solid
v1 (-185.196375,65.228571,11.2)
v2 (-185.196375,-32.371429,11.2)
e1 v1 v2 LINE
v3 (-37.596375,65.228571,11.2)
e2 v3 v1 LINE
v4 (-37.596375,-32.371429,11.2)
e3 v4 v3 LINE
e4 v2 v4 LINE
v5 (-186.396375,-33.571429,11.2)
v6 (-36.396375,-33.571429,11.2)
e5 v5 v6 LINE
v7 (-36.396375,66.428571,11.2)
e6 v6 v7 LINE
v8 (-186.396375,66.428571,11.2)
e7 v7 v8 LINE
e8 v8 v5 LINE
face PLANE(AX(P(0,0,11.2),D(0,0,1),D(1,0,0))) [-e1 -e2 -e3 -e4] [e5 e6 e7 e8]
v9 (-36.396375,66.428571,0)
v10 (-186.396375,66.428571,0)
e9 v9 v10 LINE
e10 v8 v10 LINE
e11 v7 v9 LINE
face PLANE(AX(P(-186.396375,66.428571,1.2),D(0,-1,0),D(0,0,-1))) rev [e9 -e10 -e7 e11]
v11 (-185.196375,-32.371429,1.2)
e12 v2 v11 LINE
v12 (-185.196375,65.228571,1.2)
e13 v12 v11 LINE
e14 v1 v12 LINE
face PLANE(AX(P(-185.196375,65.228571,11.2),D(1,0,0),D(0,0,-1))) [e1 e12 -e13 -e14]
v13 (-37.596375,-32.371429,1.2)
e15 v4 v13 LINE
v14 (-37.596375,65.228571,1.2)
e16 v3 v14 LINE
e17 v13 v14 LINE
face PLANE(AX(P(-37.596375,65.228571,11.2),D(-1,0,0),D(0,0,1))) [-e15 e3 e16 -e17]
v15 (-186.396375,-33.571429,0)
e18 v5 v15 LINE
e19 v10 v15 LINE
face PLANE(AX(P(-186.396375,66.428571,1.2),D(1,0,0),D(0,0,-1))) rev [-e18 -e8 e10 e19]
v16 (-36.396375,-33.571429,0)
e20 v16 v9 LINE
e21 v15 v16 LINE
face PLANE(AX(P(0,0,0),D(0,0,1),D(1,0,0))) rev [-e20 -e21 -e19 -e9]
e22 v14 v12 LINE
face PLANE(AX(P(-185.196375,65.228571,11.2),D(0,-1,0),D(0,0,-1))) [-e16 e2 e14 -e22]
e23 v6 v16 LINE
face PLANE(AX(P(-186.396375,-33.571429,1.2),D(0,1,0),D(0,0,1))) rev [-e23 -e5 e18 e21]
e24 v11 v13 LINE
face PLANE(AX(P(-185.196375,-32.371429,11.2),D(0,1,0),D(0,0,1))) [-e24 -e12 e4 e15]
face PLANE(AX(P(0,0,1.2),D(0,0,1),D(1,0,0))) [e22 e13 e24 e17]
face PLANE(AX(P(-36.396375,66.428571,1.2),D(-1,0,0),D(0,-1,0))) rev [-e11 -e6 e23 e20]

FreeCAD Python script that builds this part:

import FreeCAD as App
import Part
import Sketcher
from FreeCAD import Vector

doc = App.newDocument("Part")
params = doc.addObject("Spreadsheet::Sheet", "Params")
for row, (alias, value) in enumerate([
    ("sketch1_width", "150 mm"),
    ("sketch1_height", "100 mm"),
    ("pad1_length", "1.2 mm"),
    ("sketch2_width", "150 mm"),
    ("sketch2_height", "100 mm"),
    ("sketch2_width2", "147.6 mm"),
    ("sketch2_height2", "97.6 mm"),
    ("pad2_length", "10 mm"),
], start=1):
    params.set(f"A{row}", alias)
    params.set(f"B{row}", "=" + value)
    params.setAlias(f"B{row}", alias)

body = doc.addObject("PartDesign::Body", "Body")

# Sketch on XY plane
sketch1 = body.newObject("Sketcher::SketchObject", "Sketch")
sketch1.AttachmentSupport = (doc.getObject("XY_Plane"), [""])
sketch1.MapMode = "FlatFace"
sketch1.addGeometry([
    Part.LineSegment(Vector(-186, 66, 0), Vector(-186, -34, 0)),
    Part.LineSegment(Vector(-186, -34, 0), Vector(-36, -34, 0)),
    Part.LineSegment(Vector(-36, -34, 0), Vector(-36, 66, 0)),
    Part.LineSegment(Vector(-36, 66, 0), Vector(-186, 66, 0)),
], False)
sketch1.addConstraint([
    Sketcher.Constraint("Coincident", 0, 2, 1, 1),
    Sketcher.Constraint("Coincident", 1, 2, 2, 1),
    Sketcher.Constraint("Coincident", 2, 2, 3, 1),
    Sketcher.Constraint("Coincident", 3, 2, 0, 1),
    Sketcher.Constraint("Vertical", 0),
    Sketcher.Constraint("Horizontal", 1),
    Sketcher.Constraint("Vertical", 2),
    Sketcher.Constraint("Horizontal", 3),
    Sketcher.Constraint("DistanceX", 1, 1, 1, 2, 150.0),
    Sketcher.Constraint("DistanceY", 0, 2, 0, 1, 100.0),
    Sketcher.Constraint("DistanceY", 0, 2, -1, 1, 33.571429),
    Sketcher.Constraint("DistanceX", 0, 2, -1, 1, 186.396375),
])
sketch1.setExpression("Constraints[8]", "Params.sketch1_width")
sketch1.setExpression("Constraints[9]", "Params.sketch1_height")
pad1 = body.newObject("PartDesign::Pad", "Pad")
pad1.Profile = sketch1
pad1.setExpression("Length", "Params.pad1_length")

# Sketch on XY plane
sketch2 = body.newObject("Sketcher::SketchObject", "Sketch001")
sketch2.AttachmentSupport = (doc.getObject("XY_Plane"), [""])
sketch2.MapMode = "FlatFace"
sketch2.AttachmentOffset = App.Placement(Vector(0, 0, 1.2), App.Rotation())
sketch2.addGeometry([
    Part.LineSegment(Vector(-186, 66, 0), Vector(-186, -34, 0)),  # 0
    Part.LineSegment(Vector(-186, -34, 0), Vector(-36, -34, 0)),  # 1
    Part.LineSegment(Vector(-36, -34, 0), Vector(-36, 66, 0)),  # 2
    Part.LineSegment(Vector(-36, 66, 0), Vector(-186, 66, 0)),  # 3
    Part.LineSegment(Vector(-38, -32, 0), Vector(-185, -32, 0)),  # 4
    Part.LineSegment(Vector(-185, -32, 0), Vector(-185, 65, 0)),  # 5
    Part.LineSegment(Vector(-185, 65, 0), Vector(-38, 65, 0)),  # 6
    Part.LineSegment(Vector(-38, 65, 0), Vector(-38, -32, 0)),  # 7
], False)
sketch2.addConstraint([
    Sketcher.Constraint("Coincident", 0, 2, 1, 1),
    Sketcher.Constraint("Coincident", 1, 2, 2, 1),
    Sketcher.Constraint("Coincident", 2, 2, 3, 1),
    Sketcher.Constraint("Coincident", 3, 2, 0, 1),
    Sketcher.Constraint("Coincident", 4, 2, 5, 1),
    Sketcher.Constraint("Coincident", 5, 2, 6, 1),
    Sketcher.Constraint("Coincident", 6, 2, 7, 1),
    Sketcher.Constraint("Coincident", 7, 2, 4, 1),
    Sketcher.Constraint("Vertical", 0),
    Sketcher.Constraint("Horizontal", 1),
    Sketcher.Constraint("Vertical", 2),
    Sketcher.Constraint("Horizontal", 3),
    Sketcher.Constraint("Horizontal", 4),
    Sketcher.Constraint("Vertical", 5),
    Sketcher.Constraint("Horizontal", 6),
    Sketcher.Constraint("Vertical", 7),
    Sketcher.Constraint("DistanceX", 1, 1, 1, 2, 150.0),
    Sketcher.Constraint("DistanceY", 0, 2, 0, 1, 100.0),
    Sketcher.Constraint("DistanceX", 4, 2, 4, 1, 147.6),
    Sketcher.Constraint("DistanceY", 5, 1, 5, 2, 97.6),
    Sketcher.Constraint("DistanceX", 0, 2, 4, 2, 1.2),
    Sketcher.Constraint("DistanceY", 0, 2, 4, 2, 1.2),
    Sketcher.Constraint("DistanceY", 0, 2, -1, 1, 33.571429),
    Sketcher.Constraint("DistanceX", 0, 2, -1, 1, 186.396375),
])
sketch2.setExpression("Constraints[16]", "Params.sketch2_width")
sketch2.setExpression("Constraints[17]", "Params.sketch2_height")
sketch2.setExpression("Constraints[18]", "Params.sketch2_width2")
sketch2.setExpression("Constraints[19]", "Params.sketch2_height2")
pad2 = body.newObject("PartDesign::Pad", "Pad001")
pad2.Profile = sketch2
pad2.setExpression("Length", "Params.pad2_length")

doc.recompute()
